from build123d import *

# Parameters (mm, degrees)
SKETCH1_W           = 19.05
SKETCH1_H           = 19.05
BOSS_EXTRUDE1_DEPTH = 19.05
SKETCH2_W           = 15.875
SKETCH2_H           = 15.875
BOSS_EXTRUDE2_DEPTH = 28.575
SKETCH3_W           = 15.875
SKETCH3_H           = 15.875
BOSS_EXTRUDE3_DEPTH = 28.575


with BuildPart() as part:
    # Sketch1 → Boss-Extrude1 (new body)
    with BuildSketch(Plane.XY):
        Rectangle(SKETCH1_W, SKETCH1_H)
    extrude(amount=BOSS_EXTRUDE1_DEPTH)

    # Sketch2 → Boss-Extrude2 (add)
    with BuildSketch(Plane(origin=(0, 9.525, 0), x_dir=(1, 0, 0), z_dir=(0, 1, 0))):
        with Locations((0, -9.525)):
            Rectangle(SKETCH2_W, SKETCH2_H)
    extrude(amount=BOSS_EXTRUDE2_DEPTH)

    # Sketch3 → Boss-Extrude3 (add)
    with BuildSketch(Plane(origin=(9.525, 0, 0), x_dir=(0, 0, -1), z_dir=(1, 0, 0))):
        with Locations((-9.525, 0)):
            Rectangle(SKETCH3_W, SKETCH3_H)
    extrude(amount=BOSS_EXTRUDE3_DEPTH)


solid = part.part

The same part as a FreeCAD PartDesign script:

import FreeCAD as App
import Part
import Sketcher
Q = App.Units.Quantity


def add_polygon(sketch, points):
    """Adds a closed chain of lines whose ends are joined by coincident constraints."""
    first, n = sketch.GeometryCount, len(points)
    for a, b in zip(points, points[1:] + points[:1]):
        sketch.addGeometry(Part.LineSegment(App.Vector(*a, 0), App.Vector(*b, 0)), False)
    for i in range(n):
        sketch.addConstraint(Sketcher.Constraint("Coincident", first + i, 2, first + (i + 1) % n, 1))

doc = App.newDocument("Part")
body = doc.addObject("PartDesign::Body", "Body")

# Sketch on XY plane
sketch1 = doc.addObject("Sketcher::SketchObject", "Sketch")
body.addObject(sketch1)
sketch1.AttachmentSupport = (doc.XY_Plane, [""])
sketch1.MapMode = "FlatFace"
add_polygon(sketch1, [(-10, 10), (-10, -10), (10, -10), (10, 10)])  # lines 0-3
sketch1.addConstraint(Sketcher.Constraint("Vertical", 0))
sketch1.addConstraint(Sketcher.Constraint("Horizontal", 1))
sketch1.addConstraint(Sketcher.Constraint("Vertical", 2))
sketch1.addConstraint(Sketcher.Constraint("Horizontal", 3))
sketch1.addConstraint(Sketcher.Constraint("Symmetric", 0, 2, 2, 2, -1, 1))
sketch1.addConstraint(Sketcher.Constraint("Equal", 3, 0))
sketch1.addConstraint(Sketcher.Constraint("DistanceX", 1, 1, 1, 2, Q("0.75 in")))
pad1 = doc.addObject("PartDesign::Pad", "Pad")
body.addObject(pad1)
pad1.Profile = sketch1
pad1.Length = Q("0.75 in")

# Sketch on XZ plane
sketch2 = doc.addObject("Sketcher::SketchObject", "Sketch001")
body.addObject(sketch2)
sketch2.AttachmentSupport = (doc.XZ_Plane, [""])
sketch2.MapMode = "FlatFace"
sketch2.AttachmentOffset = App.Placement(App.Vector(0, 0, -0.375 * 25.4), App.Rotation())
add_polygon(sketch2, [(-8, 2), (-8, 17), (8, 17), (8, 2)])  # lines 0-3
sketch2.addConstraint(Sketcher.Constraint("Vertical", 0))
sketch2.addConstraint(Sketcher.Constraint("Horizontal", 1))
sketch2.addConstraint(Sketcher.Constraint("Vertical", 2))
sketch2.addConstraint(Sketcher.Constraint("Horizontal", 3))
sketch2.addConstraint(Sketcher.Constraint("Equal", 3, 0))
sketch2.addConstraint(Sketcher.Constraint("DistanceX", 1, 1, 1, 2, Q("0.625 in")))
sketch2.addConstraint(Sketcher.Constraint("DistanceX", 0, 2, -1, 1, Q("0.3125 in")))
sketch2.addConstraint(Sketcher.Constraint("DistanceY", -1, 1, 0, 2, Q("0.6875 in")))
pad2 = doc.addObject("PartDesign::Pad", "Pad001")
body.addObject(pad2)
pad2.Profile = sketch2
pad2.Length = Q("1.125 in")
pad2.Reversed = True

# Sketch on YZ plane
sketch3 = doc.addObject("Sketcher::SketchObject", "Sketch002")
body.addObject(sketch3)
sketch3.AttachmentSupport = (doc.YZ_Plane, [""])
sketch3.MapMode = "FlatFace"
sketch3.AttachmentOffset = App.Placement(App.Vector(0, 0, 0.375 * 25.4), App.Rotation())
add_polygon(sketch3, [(8, 17), (-8, 17), (-8, 2), (8, 2)])  # lines 0-3
sketch3.addConstraint(Sketcher.Constraint("Horizontal", 0))
sketch3.addConstraint(Sketcher.Constraint("Vertical", 1))
sketch3.addConstraint(Sketcher.Constraint("Horizontal", 2))
sketch3.addConstraint(Sketcher.Constraint("Vertical", 3))
sketch3.addConstraint(Sketcher.Constraint("Equal", 2, 1))
sketch3.addConstraint(Sketcher.Constraint("DistanceX", 0, 2, 0, 1, Q("0.625 in")))
sketch3.addConstraint(Sketcher.Constraint("DistanceX", 0, 2, -1, 1, Q("0.3125 in")))
sketch3.addConstraint(Sketcher.Constraint("DistanceY", -1, 1, 0, 2, Q("0.6875 in")))
pad3 = doc.addObject("PartDesign::Pad", "Pad002")
body.addObject(pad3)
pad3.Profile = sketch3
pad3.Length = Q("1.125 in")

doc.recompute()
